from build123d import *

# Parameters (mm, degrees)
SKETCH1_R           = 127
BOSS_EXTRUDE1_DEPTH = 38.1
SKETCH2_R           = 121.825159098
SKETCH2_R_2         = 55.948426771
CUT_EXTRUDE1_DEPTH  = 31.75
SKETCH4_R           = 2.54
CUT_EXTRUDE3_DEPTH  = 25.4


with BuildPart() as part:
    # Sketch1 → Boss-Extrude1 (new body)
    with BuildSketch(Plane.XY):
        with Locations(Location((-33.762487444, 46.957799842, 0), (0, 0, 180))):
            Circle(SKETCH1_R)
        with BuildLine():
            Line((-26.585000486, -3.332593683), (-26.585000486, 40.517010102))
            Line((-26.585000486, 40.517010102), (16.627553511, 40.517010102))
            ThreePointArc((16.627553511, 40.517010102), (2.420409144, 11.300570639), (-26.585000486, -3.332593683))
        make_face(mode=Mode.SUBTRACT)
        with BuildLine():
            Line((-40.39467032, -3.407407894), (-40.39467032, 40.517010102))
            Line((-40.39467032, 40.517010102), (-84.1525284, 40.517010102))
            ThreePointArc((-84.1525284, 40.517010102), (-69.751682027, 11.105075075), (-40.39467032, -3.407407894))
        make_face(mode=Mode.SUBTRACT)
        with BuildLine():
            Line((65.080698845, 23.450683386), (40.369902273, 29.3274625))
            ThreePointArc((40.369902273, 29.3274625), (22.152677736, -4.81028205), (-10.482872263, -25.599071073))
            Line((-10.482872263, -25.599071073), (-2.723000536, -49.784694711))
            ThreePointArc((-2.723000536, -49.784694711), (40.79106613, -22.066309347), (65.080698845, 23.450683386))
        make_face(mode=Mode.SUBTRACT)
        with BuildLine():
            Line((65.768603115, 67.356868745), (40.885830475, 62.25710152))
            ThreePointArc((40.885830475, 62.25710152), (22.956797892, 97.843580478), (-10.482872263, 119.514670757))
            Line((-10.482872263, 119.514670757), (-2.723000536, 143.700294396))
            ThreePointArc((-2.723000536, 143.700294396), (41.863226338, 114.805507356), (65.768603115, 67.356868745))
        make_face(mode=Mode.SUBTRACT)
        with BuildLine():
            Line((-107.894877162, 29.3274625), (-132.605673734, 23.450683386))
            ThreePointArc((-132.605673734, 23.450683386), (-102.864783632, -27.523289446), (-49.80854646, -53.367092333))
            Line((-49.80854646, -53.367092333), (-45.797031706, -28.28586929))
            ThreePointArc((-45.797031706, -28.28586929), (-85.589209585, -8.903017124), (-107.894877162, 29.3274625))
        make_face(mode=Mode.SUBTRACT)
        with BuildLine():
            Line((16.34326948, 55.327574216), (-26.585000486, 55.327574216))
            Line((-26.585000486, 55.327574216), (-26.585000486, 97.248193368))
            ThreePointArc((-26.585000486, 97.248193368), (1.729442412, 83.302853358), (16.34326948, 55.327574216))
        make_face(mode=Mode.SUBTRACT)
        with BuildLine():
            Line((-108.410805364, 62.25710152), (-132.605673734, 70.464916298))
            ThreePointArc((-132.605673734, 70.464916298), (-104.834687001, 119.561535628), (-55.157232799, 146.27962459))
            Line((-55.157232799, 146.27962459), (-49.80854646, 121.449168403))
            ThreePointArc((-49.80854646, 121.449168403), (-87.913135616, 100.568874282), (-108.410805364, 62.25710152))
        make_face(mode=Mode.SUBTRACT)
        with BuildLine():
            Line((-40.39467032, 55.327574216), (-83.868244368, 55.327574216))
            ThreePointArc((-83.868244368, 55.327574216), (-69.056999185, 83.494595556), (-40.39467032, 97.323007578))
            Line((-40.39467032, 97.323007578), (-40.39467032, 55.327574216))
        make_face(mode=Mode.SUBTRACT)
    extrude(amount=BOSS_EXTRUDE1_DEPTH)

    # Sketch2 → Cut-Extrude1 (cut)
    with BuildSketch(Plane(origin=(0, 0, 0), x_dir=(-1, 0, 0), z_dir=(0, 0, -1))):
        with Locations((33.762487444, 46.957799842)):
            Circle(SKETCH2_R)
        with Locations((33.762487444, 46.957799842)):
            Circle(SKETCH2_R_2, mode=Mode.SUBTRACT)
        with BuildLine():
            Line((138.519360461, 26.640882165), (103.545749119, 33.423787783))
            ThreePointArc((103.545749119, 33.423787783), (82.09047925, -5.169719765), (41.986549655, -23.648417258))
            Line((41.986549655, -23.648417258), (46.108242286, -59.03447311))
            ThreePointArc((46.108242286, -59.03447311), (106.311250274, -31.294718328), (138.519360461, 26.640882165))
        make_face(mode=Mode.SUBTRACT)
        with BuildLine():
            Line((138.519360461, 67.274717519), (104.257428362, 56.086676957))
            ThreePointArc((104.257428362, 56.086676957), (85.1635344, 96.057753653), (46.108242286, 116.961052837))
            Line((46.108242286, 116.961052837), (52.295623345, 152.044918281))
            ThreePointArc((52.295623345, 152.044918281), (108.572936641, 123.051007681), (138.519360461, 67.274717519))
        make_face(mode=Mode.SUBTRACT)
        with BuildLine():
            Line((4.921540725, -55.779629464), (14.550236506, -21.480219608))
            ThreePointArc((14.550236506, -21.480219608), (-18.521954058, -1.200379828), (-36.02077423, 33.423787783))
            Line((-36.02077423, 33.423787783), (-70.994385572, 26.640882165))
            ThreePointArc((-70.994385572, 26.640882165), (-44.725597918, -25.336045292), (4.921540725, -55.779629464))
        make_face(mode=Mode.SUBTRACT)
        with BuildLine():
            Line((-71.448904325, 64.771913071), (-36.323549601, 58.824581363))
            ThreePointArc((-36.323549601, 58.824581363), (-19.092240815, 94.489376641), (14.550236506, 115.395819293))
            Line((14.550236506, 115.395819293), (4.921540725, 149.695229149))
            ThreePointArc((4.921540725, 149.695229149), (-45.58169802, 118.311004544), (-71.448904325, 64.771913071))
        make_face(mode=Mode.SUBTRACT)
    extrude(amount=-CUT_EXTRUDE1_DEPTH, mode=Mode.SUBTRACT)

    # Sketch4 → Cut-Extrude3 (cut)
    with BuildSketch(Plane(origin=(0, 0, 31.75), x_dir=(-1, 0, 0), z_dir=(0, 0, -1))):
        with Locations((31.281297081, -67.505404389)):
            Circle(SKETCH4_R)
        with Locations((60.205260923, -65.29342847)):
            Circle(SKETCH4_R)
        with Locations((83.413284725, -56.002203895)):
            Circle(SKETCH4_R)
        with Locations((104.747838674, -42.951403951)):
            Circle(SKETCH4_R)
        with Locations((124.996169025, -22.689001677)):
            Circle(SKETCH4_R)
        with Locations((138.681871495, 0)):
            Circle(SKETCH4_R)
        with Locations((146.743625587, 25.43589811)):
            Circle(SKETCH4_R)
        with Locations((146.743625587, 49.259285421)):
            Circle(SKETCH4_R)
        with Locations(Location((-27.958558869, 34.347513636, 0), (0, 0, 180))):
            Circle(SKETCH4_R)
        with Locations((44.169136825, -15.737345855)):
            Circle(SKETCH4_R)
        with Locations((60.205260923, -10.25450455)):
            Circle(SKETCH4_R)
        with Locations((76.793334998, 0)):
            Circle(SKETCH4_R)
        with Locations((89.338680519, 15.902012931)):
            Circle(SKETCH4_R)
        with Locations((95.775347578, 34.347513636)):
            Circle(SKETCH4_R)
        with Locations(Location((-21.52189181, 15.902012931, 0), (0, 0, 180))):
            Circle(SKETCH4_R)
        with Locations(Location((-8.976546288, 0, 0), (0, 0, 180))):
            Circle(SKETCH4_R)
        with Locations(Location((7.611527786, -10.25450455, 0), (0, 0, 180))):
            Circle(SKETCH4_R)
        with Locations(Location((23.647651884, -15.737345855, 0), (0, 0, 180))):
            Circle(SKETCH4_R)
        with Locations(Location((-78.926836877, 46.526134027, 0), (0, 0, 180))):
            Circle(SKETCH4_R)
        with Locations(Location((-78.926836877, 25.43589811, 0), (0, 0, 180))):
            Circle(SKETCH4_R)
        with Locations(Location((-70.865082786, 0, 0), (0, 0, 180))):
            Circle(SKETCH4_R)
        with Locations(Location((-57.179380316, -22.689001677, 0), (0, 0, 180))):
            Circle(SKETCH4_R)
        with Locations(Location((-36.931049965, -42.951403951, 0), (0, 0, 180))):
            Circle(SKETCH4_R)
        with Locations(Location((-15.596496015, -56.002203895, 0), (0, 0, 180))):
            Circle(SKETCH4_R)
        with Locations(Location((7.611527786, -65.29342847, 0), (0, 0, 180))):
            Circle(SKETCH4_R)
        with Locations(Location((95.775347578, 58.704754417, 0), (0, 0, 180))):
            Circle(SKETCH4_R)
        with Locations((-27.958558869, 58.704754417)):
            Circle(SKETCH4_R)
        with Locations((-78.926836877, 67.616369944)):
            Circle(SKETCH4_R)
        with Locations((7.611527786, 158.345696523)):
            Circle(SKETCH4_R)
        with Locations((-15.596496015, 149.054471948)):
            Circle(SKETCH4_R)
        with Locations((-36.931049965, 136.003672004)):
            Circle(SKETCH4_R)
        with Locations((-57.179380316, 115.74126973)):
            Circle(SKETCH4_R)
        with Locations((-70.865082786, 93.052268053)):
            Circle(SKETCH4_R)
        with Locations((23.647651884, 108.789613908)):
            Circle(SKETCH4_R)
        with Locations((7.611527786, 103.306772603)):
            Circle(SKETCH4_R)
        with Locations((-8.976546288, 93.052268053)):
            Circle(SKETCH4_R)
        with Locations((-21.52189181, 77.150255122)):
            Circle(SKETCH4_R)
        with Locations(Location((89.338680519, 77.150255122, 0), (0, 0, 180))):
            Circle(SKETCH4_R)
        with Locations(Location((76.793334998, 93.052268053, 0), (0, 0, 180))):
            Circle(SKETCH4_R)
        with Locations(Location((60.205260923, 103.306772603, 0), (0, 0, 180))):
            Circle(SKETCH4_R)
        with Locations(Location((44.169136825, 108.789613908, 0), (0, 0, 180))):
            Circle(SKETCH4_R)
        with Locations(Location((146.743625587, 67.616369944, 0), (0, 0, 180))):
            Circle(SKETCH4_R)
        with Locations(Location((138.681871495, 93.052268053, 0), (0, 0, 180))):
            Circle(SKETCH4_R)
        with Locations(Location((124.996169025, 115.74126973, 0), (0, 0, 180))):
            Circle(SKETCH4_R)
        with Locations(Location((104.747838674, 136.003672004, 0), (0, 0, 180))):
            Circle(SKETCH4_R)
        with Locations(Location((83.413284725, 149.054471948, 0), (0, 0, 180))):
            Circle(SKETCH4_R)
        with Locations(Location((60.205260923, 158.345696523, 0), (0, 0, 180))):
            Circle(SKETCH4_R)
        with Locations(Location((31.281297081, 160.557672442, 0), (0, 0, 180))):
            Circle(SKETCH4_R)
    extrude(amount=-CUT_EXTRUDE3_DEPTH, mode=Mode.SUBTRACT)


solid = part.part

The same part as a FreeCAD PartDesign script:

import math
import FreeCAD as App
import Part
import Sketcher
from FreeCAD import Vector
Q = App.Units.Quantity

doc = App.newDocument("Part")
params = doc.addObject("Spreadsheet::Sheet", "Params")
for row, (alias, value) in enumerate([
    ("sketch1_diameter", "10 in"),
    ("sketch1_radius", "4 in"),
    ("sketch1_radius2", "3 in"),
    ("sketch1_radius3", "2 in"),
    ("pad1_length", "1.5 in"),
    ("pocket1_length", "1.25 in"),
    ("sketch3_diameter", "0.2 in"),
    ("pocket2_length", "1 in"),
], start=1):
    params.set(f"A{row}", alias)
    params.set(f"B{row}", "=" + value)
    params.setAlias(f"B{row}", alias)

body = doc.addObject("PartDesign::Body", "Body")

# Sketch on XY plane
sketch1 = body.newObject("Sketcher::SketchObject", "Sketch")
sketch1.AttachmentSupport = (doc.getObject("XY_Plane"), [""])
sketch1.MapMode = "FlatFace"
sketch1.addGeometry(Part.Circle(Vector(-34, 47, 0), Vector(0, 0, 1), 127), False)
sketch1.addGeometry(Part.ArcOfCircle(Part.Circle(Vector(-34, 47, 0), Vector(0, 0, 1), 102), math.radians(12), math.radians(72)), False)
sketch1.addGeometry(Part.LineSegment(Vector(66, 67, 0), Vector(41, 62, 0)), False)
sketch1.addGeometry(Part.ArcOfCircle(Part.Circle(Vector(-34, 47, 0), Vector(0, 0, 1), 76), math.radians(12), math.radians(72)), False)
sketch1.addGeometry(Part.LineSegment(Vector(-10, 120, 0), Vector(-3, 144, 0)), False)
sketch1.addGeometry(Part.ArcOfCircle(Part.Circle(Vector(-34, 47, 0), Vector(0, 0, 1), 51), math.radians(9), math.radians(82)), False)
sketch1.addGeometry(Part.LineSegment(Vector(16, 55, 0), Vector(-27, 55, 0)), False)
sketch1.addGeometry(Part.LineSegment(Vector(-27, 55, 0), Vector(-27, 97, 0)), False)
sketch1.addGeometry(Part.ArcOfCircle(Part.Circle(Vector(-34, 47, 0), Vector(0, 0, 1), 76), math.radians(102), math.radians(168)), False)
sketch1.addGeometry(Part.LineSegment(Vector(-108, 62, 0), Vector(-133, 70, 0)), False)
sketch1.addGeometry(Part.ArcOfCircle(Part.Circle(Vector(-34, 47, 0), Vector(0, 0, 1), 102), math.radians(102), math.radians(167)), False)
sketch1.addGeometry(Part.LineSegment(Vector(-55, 146, 0), Vector(-50, 121, 0)), False)
sketch1.addGeometry(Part.LineSegment(Vector(-40, 97, 0), Vector(-40, 55, 0)), False)
sketch1.addGeometry(Part.LineSegment(Vector(-40, 55, 0), Vector(-84, 55, 0)), False)
sketch1.addGeometry(Part.ArcOfCircle(Part.Circle(Vector(-34, 47, 0), Vector(0, 0, 1), 51), math.radians(98), math.radians(171)), False)
sketch1.addGeometry(Part.ArcOfCircle(Part.Circle(Vector(-34, 47, 0), Vector(0, 0, 1), 51), math.radians(-82), math.radians(-7)), False)
sketch1.addGeometry(Part.LineSegment(Vector(-27, -3, 0), Vector(-27, 41, 0)), False)
sketch1.addGeometry(Part.LineSegment(Vector(-27, 41, 0), Vector(17, 41, 0)), False)
sketch1.addGeometry(Part.LineSegment(Vector(40, 29, 0), Vector(65, 23, 0)), False)
sketch1.addGeometry(Part.ArcOfCircle(Part.Circle(Vector(-34, 47, 0), Vector(0, 0, 1), 102), math.radians(-72), math.radians(-13)), False)
sketch1.addGeometry(Part.LineSegment(Vector(-3, -50, 0), Vector(-10, -26, 0)), False)
sketch1.addGeometry(Part.ArcOfCircle(Part.Circle(Vector(-34, 47, 0), Vector(0, 0, 1), 76), math.radians(-72), math.radians(-13)), False)
sketch1.addGeometry(Part.LineSegment(Vector(-40, 41, 0), Vector(-40, -3, 0)), False)
sketch1.addGeometry(Part.ArcOfCircle(Part.Circle(Vector(-34, 47, 0), Vector(0, 0, 1), 51), math.radians(-173), math.radians(-98)), False)
sketch1.addGeometry(Part.LineSegment(Vector(-84, 41, 0), Vector(-40, 41, 0)), False)
sketch1.addGeometry(Part.LineSegment(Vector(-133, 23, 0), Vector(-108, 29, 0)), False)
sketch1.addGeometry(Part.ArcOfCircle(Part.Circle(Vector(-34, 47, 0), Vector(0, 0, 1), 76), math.radians(-167), math.radians(-99)), False)
sketch1.addGeometry(Part.LineSegment(Vector(-46, -28, 0), Vector(-50, -53, 0)), False)
sketch1.addGeometry(Part.ArcOfCircle(Part.Circle(Vector(-34, 47, 0), Vector(0, 0, 1), 102), math.radians(-167), math.radians(-99)), False)
sketch1.addConstraint(Sketcher.Constraint("Coincident", 1, 1, 2, 1))
sketch1.addConstraint(Sketcher.Constraint("Coincident", 2, 2, 3, 1))
sketch1.addConstraint(Sketcher.Constraint("Coincident", 3, 2, 4, 1))
sketch1.addConstraint(Sketcher.Constraint("Coincident", 4, 2, 1, 2))
sketch1.addConstraint(Sketcher.Constraint("Coincident", 5, 1, 6, 1))
sketch1.addConstraint(Sketcher.Constraint("Coincident", 6, 2, 7, 1))
sketch1.addConstraint(Sketcher.Constraint("Coincident", 7, 2, 5, 2))
sketch1.addConstraint(Sketcher.Constraint("Coincident", 8, 2, 9, 1))
sketch1.addConstraint(Sketcher.Constraint("Coincident", 9, 2, 10, 2))
sketch1.addConstraint(Sketcher.Constraint("Coincident", 10, 1, 11, 1))
sketch1.addConstraint(Sketcher.Constraint("Coincident", 11, 2, 8, 1))
sketch1.addConstraint(Sketcher.Constraint("Coincident", 12, 2, 13, 1))
sketch1.addConstraint(Sketcher.Constraint("Coincident", 13, 2, 14, 2))
sketch1.addConstraint(Sketcher.Constraint("Coincident", 14, 1, 12, 1))
sketch1.addConstraint(Sketcher.Constraint("Coincident", 15, 1, 16, 1))
sketch1.addConstraint(Sketcher.Constraint("Coincident", 16, 2, 17, 1))
sketch1.addConstraint(Sketcher.Constraint("Coincident", 17, 2, 15, 2))
sketch1.addConstraint(Sketcher.Constraint("Coincident", 18, 2, 19, 2))
sketch1.addConstraint(Sketcher.Constraint("Coincident", 19, 1, 20, 1))
sketch1.addConstraint(Sketcher.Constraint("Coincident", 20, 2, 21, 1))
sketch1.addConstraint(Sketcher.Constraint("Coincident", 21, 2, 18, 1))
sketch1.addConstraint(Sketcher.Constraint("Coincident", 22, 2, 23, 2))
sketch1.addConstraint(Sketcher.Constraint("Coincident", 23, 1, 24, 1))
sketch1.addConstraint(Sketcher.Constraint("Coincident", 24, 2, 22, 1))
sketch1.addConstraint(Sketcher.Constraint("Coincident", 25, 2, 26, 1))
sketch1.addConstraint(Sketcher.Constraint("Coincident", 26, 2, 27, 1))
sketch1.addConstraint(Sketcher.Constraint("Coincident", 27, 2, 28, 2))
sketch1.addConstraint(Sketcher.Constraint("Coincident", 28, 1, 25, 1))
sketch1.addConstraint(Sketcher.Constraint("Horizontal", 6))
sketch1.addConstraint(Sketcher.Constraint("Vertical", 7))
sketch1.addConstraint(Sketcher.Constraint("Vertical", 12))
sketch1.addConstraint(Sketcher.Constraint("Horizontal", 13))
sketch1.addConstraint(Sketcher.Constraint("Vertical", 16))
sketch1.addConstraint(Sketcher.Constraint("Horizontal", 17))
sketch1.addConstraint(Sketcher.Constraint("Vertical", 22))
sketch1.addConstraint(Sketcher.Constraint("Horizontal", 24))
sketch1.addConstraint(Sketcher.Constraint("Coincident", 1, 3, 0, 3))
sketch1.addConstraint(Sketcher.Constraint("Coincident", 3, 3, 0, 3))
sketch1.addConstraint(Sketcher.Constraint("Coincident", 5, 3, 0, 3))
sketch1.addConstraint(Sketcher.Constraint("Coincident", 8, 3, 0, 3))
sketch1.addConstraint(Sketcher.Constraint("Coincident", 10, 3, 0, 3))
sketch1.addConstraint(Sketcher.Constraint("Coincident", 14, 3, 0, 3))
sketch1.addConstraint(Sketcher.Constraint("Coincident", 15, 3, 0, 3))
sketch1.addConstraint(Sketcher.Constraint("Coincident", 19, 3, 0, 3))
sketch1.addConstraint(Sketcher.Constraint("Coincident", 21, 3, 0, 3))
sketch1.addConstraint(Sketcher.Constraint("Coincident", 23, 3, 0, 3))
sketch1.addConstraint(Sketcher.Constraint("Coincident", 26, 3, 0, 3))
sketch1.addConstraint(Sketcher.Constraint("Coincident", 28, 3, 0, 3))
sketch1.addConstraint(Sketcher.Constraint("Equal", 3, 8))
sketch1.addConstraint(Sketcher.Constraint("Equal", 1, 10))
sketch1.addConstraint(Sketcher.Constraint("Equal", 5, 14))
sketch1.addConstraint(Sketcher.Constraint("Equal", 14, 15))
sketch1.addConstraint(Sketcher.Constraint("Equal", 10, 19))
sketch1.addConstraint(Sketcher.Constraint("Equal", 8, 21))
sketch1.addConstraint(Sketcher.Constraint("Equal", 15, 23))
sketch1.addConstraint(Sketcher.Constraint("Equal", 21, 26))
sketch1.addConstraint(Sketcher.Constraint("Equal", 19, 28))
sketch1.addConstraint(Sketcher.Constraint("Horizontal", 2, 2, 8, 2))
sketch1.addConstraint(Sketcher.Constraint("Horizontal", 6, 2, 12, 2))
sketch1.addConstraint(Sketcher.Constraint("Horizontal", 17, 2, 23, 1))
sketch1.addConstraint(Sketcher.Constraint("Horizontal", 21, 2, 25, 2))
sketch1.addConstraint(Sketcher.Constraint("Horizontal", 18, 2, 28, 1))
sketch1.addConstraint(Sketcher.Constraint("Vertical", 7, 2, 15, 1))
sketch1.addConstraint(Sketcher.Constraint("Vertical", 4, 2, 19, 1))
sketch1.addConstraint(Sketcher.Constraint("Vertical", 3, 2, 20, 2))
sketch1.addConstraint(Sketcher.Constraint("Vertical", 14, 1, 22, 2))
sketch1.addConstraint(Sketcher.Constraint("Vertical", 11, 2, 27, 2))
sketch1.addConstraint(Sketcher.Constraint("Vertical", 9, 2, 28, 1))
sketch1.addConstraint(Sketcher.Constraint("Diameter", 0, Q("10 in")))
sketch1.addConstraint(Sketcher.Constraint("Radius", 1, Q("4 in")))
sketch1.addConstraint(Sketcher.Constraint("Radius", 3, Q("3 in")))
sketch1.addConstraint(Sketcher.Constraint("Radius", 5, Q("2 in")))
sketch1.addConstraint(Sketcher.Constraint("DistanceX", 6, 2, 6, 1, 42.92827))
sketch1.addConstraint(Sketcher.Constraint("DistanceX", 24, 1, 24, 2, 43.757858))
sketch1.addConstraint(Sketcher.Constraint("DistanceY", 7, 1, 7, 2, 41.920619))
sketch1.addConstraint(Sketcher.Constraint("DistanceY", -1, 1, 0, 3, 46.9578))
sketch1.addConstraint(Sketcher.Constraint("DistanceY", -1, 1, 2, 2, 62.257102))
sketch1.addConstraint(Sketcher.Constraint("DistanceX", 4, 2, -1, 1, 2.723001))
sketch1.addConstraint(Sketcher.Constraint("DistanceX", 6, 2, -1, 1, 26.585))
sketch1.addConstraint(Sketcher.Constraint("DistanceX", -1, 1, 18, 2, 65.080699))
sketch1.addConstraint(Sketcher.Constraint("DistanceX", 14, 1, 3, 2, 29.911798))
sketch1.addConstraint(Sketcher.Constraint("DistanceX", 21, 2, 1, 1, 25.398701))
sketch1.addConstraint(Sketcher.Constraint("DistanceY", 26, 2, 20, 2, 2.686798))
sketch1.addConstraint(Sketcher.Constraint("DistanceY", 27, 2, 15, 1, 50.034499))
sketch1.addConstraint(Sketcher.Constraint("DistanceX", 13, 2, 13, 1, 43.473574))
sketch1.addConstraint(Sketcher.Constraint("DistanceY", -1, 1, 1, 1, 67.356869))
sketch1.addConstraint(Sketcher.Constraint("DistanceX", 10, 1, 3, 2, 44.674361))
sketch1.setExpression("Constraints[68]", "Params.sketch1_diameter")
sketch1.setExpression("Constraints[69]", "Params.sketch1_radius")
sketch1.setExpression("Constraints[70]", "Params.sketch1_radius2")
sketch1.setExpression("Constraints[71]", "Params.sketch1_radius3")
pad1 = body.newObject("PartDesign::Pad", "Pad")
pad1.Profile = sketch1
pad1.setExpression("Length", "Params.pad1_length")

# Sketch on XY plane
sketch2 = body.newObject("Sketcher::SketchObject", "Sketch001")
sketch2.AttachmentSupport = (doc.getObject("XY_Plane"), [""])
sketch2.MapMode = "FlatFace"
sketch2.addGeometry(Part.Circle(Vector(-34, 47, 0), Vector(0, 0, 1), 122), False)
sketch2.addGeometry(Part.LineSegment(Vector(-15, -21, 0), Vector(-5, -56, 0)), False)
sketch2.addGeometry(Part.ArcOfCircle(Part.Circle(Vector(-34, 47, 0), Vector(0, 0, 1), 107), math.radians(-74), math.radians(-11)), False)
sketch2.addGeometry(Part.LineSegment(Vector(71, 27, 0), Vector(36, 33, 0)), False)
sketch2.addGeometry(Part.ArcOfCircle(Part.Circle(Vector(-34, 47, 0), Vector(0, 0, 1), 71), math.radians(-74), math.radians(-11)), False)
sketch2.addGeometry(Part.LineSegment(Vector(-104, 33, 0), Vector(-139, 27, 0)), False)
sketch2.addGeometry(Part.ArcOfCircle(Part.Circle(Vector(-34, 47, 0), Vector(0, 0, 1), 107), math.radians(-169), math.radians(-97)), False)
sketch2.addGeometry(Part.LineSegment(Vector(-46, -59, 0), Vector(-42, -24, 0)), False)
sketch2.addGeometry(Part.ArcOfCircle(Part.Circle(Vector(-34, 47, 0), Vector(0, 0, 1), 71), math.radians(-169), math.radians(-97)), False)
sketch2.addGeometry(Part.LineSegment(Vector(36, 59, 0), Vector(71, 65, 0)), False)
sketch2.addGeometry(Part.ArcOfCircle(Part.Circle(Vector(-34, 47, 0), Vector(0, 0, 1), 107), math.radians(10), math.radians(74)), False)
sketch2.addGeometry(Part.LineSegment(Vector(-5, 150, 0), Vector(-15, 115, 0)), False)
sketch2.addGeometry(Part.ArcOfCircle(Part.Circle(Vector(-34, 47, 0), Vector(0, 0, 1), 71), math.radians(10), math.radians(74)), False)
sketch2.addGeometry(Part.Circle(Vector(-34, 47, 0), Vector(0, 0, 1), 56), False)
sketch2.addGeometry(Part.ArcOfCircle(Part.Circle(Vector(-34, 47, 0), Vector(0, 0, 1), 107), math.radians(100), math.radians(169)), False)
sketch2.addGeometry(Part.LineSegment(Vector(-139, 67, 0), Vector(-104, 56, 0)), False)
sketch2.addGeometry(Part.ArcOfCircle(Part.Circle(Vector(-34, 47, 0), Vector(0, 0, 1), 71), math.radians(100), math.radians(173)), False)
sketch2.addGeometry(Part.LineSegment(Vector(-46, 117, 0), Vector(-52, 152, 0)), False)
sketch2.addConstraint(Sketcher.Constraint("Coincident", 1, 2, 2, 1))
sketch2.addConstraint(Sketcher.Constraint("Coincident", 2, 2, 3, 1))
sketch2.addConstraint(Sketcher.Constraint("Coincident", 3, 2, 4, 2))
sketch2.addConstraint(Sketcher.Constraint("Coincident", 4, 1, 1, 1))
sketch2.addConstraint(Sketcher.Constraint("Coincident", 5, 2, 6, 1))
sketch2.addConstraint(Sketcher.Constraint("Coincident", 6, 2, 7, 1))
sketch2.addConstraint(Sketcher.Constraint("Coincident", 7, 2, 8, 2))
sketch2.addConstraint(Sketcher.Constraint("Coincident", 8, 1, 5, 1))
sketch2.addConstraint(Sketcher.Constraint("Coincident", 9, 2, 10, 1))
sketch2.addConstraint(Sketcher.Constraint("Coincident", 10, 2, 11, 1))
sketch2.addConstraint(Sketcher.Constraint("Coincident", 11, 2, 12, 2))
sketch2.addConstraint(Sketcher.Constraint("Coincident", 12, 1, 9, 1))
sketch2.addConstraint(Sketcher.Constraint("Coincident", 14, 2, 15, 1))
sketch2.addConstraint(Sketcher.Constraint("Coincident", 15, 2, 16, 2))
sketch2.addConstraint(Sketcher.Constraint("Coincident", 16, 1, 17, 1))
sketch2.addConstraint(Sketcher.Constraint("Coincident", 17, 2, 14, 1))
sketch2.addConstraint(Sketcher.Constraint("Coincident", 2, 3, 0, 3))
sketch2.addConstraint(Sketcher.Constraint("Coincident", 4, 3, 0, 3))
sketch2.addConstraint(Sketcher.Constraint("Coincident", 6, 3, 0, 3))
sketch2.addConstraint(Sketcher.Constraint("Coincident", 8, 3, 0, 3))
sketch2.addConstraint(Sketcher.Constraint("Coincident", 10, 3, 0, 3))
sketch2.addConstraint(Sketcher.Constraint("Coincident", 12, 3, 0, 3))
sketch2.addConstraint(Sketcher.Constraint("Coincident", 13, 3, 0, 3))
sketch2.addConstraint(Sketcher.Constraint("Coincident", 14, 3, 0, 3))
sketch2.addConstraint(Sketcher.Constraint("Coincident", 16, 3, 0, 3))
sketch2.addConstraint(Sketcher.Constraint("Equal", 2, 6))
sketch2.addConstraint(Sketcher.Constraint("Equal", 4, 8))
sketch2.addConstraint(Sketcher.Constraint("Equal", 6, 10))
sketch2.addConstraint(Sketcher.Constraint("Equal", 8, 12))
sketch2.addConstraint(Sketcher.Constraint("Equal", 10, 14))
sketch2.addConstraint(Sketcher.Constraint("Equal", 12, 16))
sketch2.addConstraint(Sketcher.Constraint("Horizontal", 2, 2, 5, 2))
sketch2.addConstraint(Sketcher.Constraint("Horizontal", 3, 2, 8, 1))
sketch2.addConstraint(Sketcher.Constraint("Vertical", 1, 2, 10, 2))
sketch2.addConstraint(Sketcher.Constraint("Vertical", 4, 1, 11, 2))
sketch2.addConstraint(Sketcher.Constraint("Vertical", 5, 2, 14, 2))
sketch2.addConstraint(Sketcher.Constraint("Vertical", 6, 2, 16, 1))
sketch2.addConstraint(Sketcher.Constraint("Diameter", 0, 243.650318))
sketch2.addConstraint(Sketcher.Constraint("Diameter", 13, 111.896854))
sketch2.addConstraint(Sketcher.Constraint("Radius", 2, 106.708854))
sketch2.addConstraint(Sketcher.Constraint("Radius", 4, 71.083564))
sketch2.addConstraint(Sketcher.Constraint("DistanceY", -1, 1, 0, 3, 46.9578))
sketch2.addConstraint(Sketcher.Constraint("DistanceX", 6, 2, 1, 2, 41.186702))
sketch2.addConstraint(Sketcher.Constraint("DistanceY", 2, 2, 12, 1, 32.183699))
sketch2.addConstraint(Sketcher.Constraint("DistanceY", 11, 2, 17, 2, 36.649099))
sketch2.addConstraint(Sketcher.Constraint("DistanceX", 1, 2, -1, 1, 4.921541))
sketch2.addConstraint(Sketcher.Constraint("DistanceY", 1, 2, -1, 1, 55.779629))
sketch2.addConstraint(Sketcher.Constraint("DistanceY", 4, 1, -1, 1, 21.48022))
sketch2.addConstraint(Sketcher.Constraint("DistanceX", 5, 2, -1, 1, 138.51936))
sketch2.addConstraint(Sketcher.Constraint("DistanceX", 7, 2, -1, 1, 41.98655))
sketch2.addConstraint(Sketcher.Constraint("DistanceX", 8, 1, -1, 1, 103.545749))
sketch2.addConstraint(Sketcher.Constraint("DistanceX", 15, 2, -1, 1, 104.257428))
sketch2.addConstraint(Sketcher.Constraint("DistanceX", 2, 2, 9, 2, 0.454519))
pocket1 = body.newObject("PartDesign::Pocket", "Pocket")
pocket1.Profile = sketch2
pocket1.setExpression("Length", "Params.pocket1_length")
pocket1.Reversed = True

# Sketch on XY plane
sketch3 = body.newObject("Sketcher::SketchObject", "Sketch002")
sketch3.AttachmentSupport = (doc.getObject("XY_Plane"), [""])
sketch3.MapMode = "FlatFace"
sketch3.AttachmentOffset = App.Placement(Vector(0, 0, 1.25 * 25.4), App.Rotation())
sketch3.addGeometry(Part.Circle(Vector(-31.3, -67.5, 0), Vector(0, 0, 1), 2.5), False)
sketch3.addGeometry(Part.Circle(Vector(-60.2, -65.3, 0), Vector(0, 0, 1), 2.5), False)
sketch3.addGeometry(Part.Circle(Vector(-83.4, -56, 0), Vector(0, 0, 1), 2.5), False)
sketch3.addGeometry(Part.Circle(Vector(-104.7, -43, 0), Vector(0, 0, 1), 2.5), False)
sketch3.addGeometry(Part.Circle(Vector(-125, -22.7, 0), Vector(0, 0, 1), 2.5), False)
sketch3.addGeometry(Part.Circle(Vector(-138.7, 0, 0), Vector(0, 0, 1), 2.5), False)
sketch3.addGeometry(Part.Circle(Vector(-146.7, 25.4, 0), Vector(0, 0, 1), 2.5), False)
sketch3.addGeometry(Part.Circle(Vector(-146.7, 49.3, 0), Vector(0, 0, 1), 2.5), False)
sketch3.addGeometry(Part.Circle(Vector(28, 34.3, 0), Vector(0, 0, 1), 2.5), False)
sketch3.addGeometry(Part.Circle(Vector(-44.2, -15.7, 0), Vector(0, 0, 1), 2.5), False)
sketch3.addGeometry(Part.Circle(Vector(-60.2, -10.3, 0), Vector(0, 0, 1), 2.5), False)
sketch3.addGeometry(Part.Circle(Vector(-76.8, 0, 0), Vector(0, 0, 1), 2.5), False)
sketch3.addGeometry(Part.Circle(Vector(-89.3, 15.9, 0), Vector(0, 0, 1), 2.5), False)
sketch3.addGeometry(Part.Circle(Vector(-95.8, 34.3, 0), Vector(0, 0, 1), 2.5), False)
sketch3.addGeometry(Part.Circle(Vector(21.5, 15.9, 0), Vector(0, 0, 1), 2.5), False)
sketch3.addGeometry(Part.Circle(Vector(9, 0, 0), Vector(0, 0, 1), 2.5), False)
sketch3.addGeometry(Part.Circle(Vector(-7.6, -10.3, 0), Vector(0, 0, 1), 2.5), False)
sketch3.addGeometry(Part.Circle(Vector(-23.6, -15.7, 0), Vector(0, 0, 1), 2.5), False)
sketch3.addGeometry(Part.Circle(Vector(78.9, 46.5, 0), Vector(0, 0, 1), 2.5), False)
sketch3.addGeometry(Part.Circle(Vector(78.9, 25.4, 0), Vector(0, 0, 1), 2.5), False)
sketch3.addGeometry(Part.Circle(Vector(70.9, 0, 0), Vector(0, 0, 1), 2.5), False)
sketch3.addGeometry(Part.Circle(Vector(57.2, -22.7, 0), Vector(0, 0, 1), 2.5), False)
sketch3.addGeometry(Part.Circle(Vector(36.9, -43, 0), Vector(0, 0, 1), 2.5), False)
sketch3.addGeometry(Part.Circle(Vector(15.6, -56, 0), Vector(0, 0, 1), 2.5), False)
sketch3.addGeometry(Part.Circle(Vector(-7.6, -65.3, 0), Vector(0, 0, 1), 2.5), False)
sketch3.addGeometry(Part.Circle(Vector(-95.8, 58.7, 0), Vector(0, 0, 1), 2.5), False)
sketch3.addGeometry(Part.Circle(Vector(28, 58.7, 0), Vector(0, 0, 1), 2.5), False)
sketch3.addGeometry(Part.Circle(Vector(78.9, 67.6, 0), Vector(0, 0, 1), 2.5), False)
sketch3.addGeometry(Part.Circle(Vector(-7.6, 158.3, 0), Vector(0, 0, 1), 2.5), False)
sketch3.addGeometry(Part.Circle(Vector(15.6, 149.1, 0), Vector(0, 0, 1), 2.5), False)
sketch3.addGeometry(Part.Circle(Vector(36.9, 136, 0), Vector(0, 0, 1), 2.5), False)
sketch3.addGeometry(Part.Circle(Vector(57.2, 115.7, 0), Vector(0, 0, 1), 2.5), False)
sketch3.addGeometry(Part.Circle(Vector(70.9, 93.1, 0), Vector(0, 0, 1), 2.5), False)
sketch3.addGeometry(Part.Circle(Vector(-23.6, 108.8, 0), Vector(0, 0, 1), 2.5), False)
sketch3.addGeometry(Part.Circle(Vector(-7.6, 103.3, 0), Vector(0, 0, 1), 2.5), False)
sketch3.addGeometry(Part.Circle(Vector(9, 93.1, 0), Vector(0, 0, 1), 2.5), False)
sketch3.addGeometry(Part.Circle(Vector(21.5, 77.2, 0), Vector(0, 0, 1), 2.5), False)
sketch3.addGeometry(Part.Circle(Vector(-89.3, 77.2, 0), Vector(0, 0, 1), 2.5), False)
sketch3.addGeometry(Part.Circle(Vector(-76.8, 93.1, 0), Vector(0, 0, 1), 2.5), False)
sketch3.addGeometry(Part.Circle(Vector(-60.2, 103.3, 0), Vector(0, 0, 1), 2.5), False)
sketch3.addGeometry(Part.Circle(Vector(-44.2, 108.8, 0), Vector(0, 0, 1), 2.5), False)
sketch3.addGeometry(Part.Circle(Vector(-146.7, 67.6, 0), Vector(0, 0, 1), 2.5), False)
sketch3.addGeometry(Part.Circle(Vector(-138.7, 93.1, 0), Vector(0, 0, 1), 2.5), False)
sketch3.addGeometry(Part.Circle(Vector(-125, 115.7, 0), Vector(0, 0, 1), 2.5), False)
sketch3.addGeometry(Part.Circle(Vector(-104.7, 136, 0), Vector(0, 0, 1), 2.5), False)
sketch3.addGeometry(Part.Circle(Vector(-83.4, 149.1, 0), Vector(0, 0, 1), 2.5), False)
sketch3.addGeometry(Part.Circle(Vector(-60.2, 158.3, 0), Vector(0, 0, 1), 2.5), False)
sketch3.addGeometry(Part.Circle(Vector(-31.3, 160.6, 0), Vector(0, 0, 1), 2.5), False)
sketch3.addConstraint(Sketcher.Constraint("Equal", 0, 1))
sketch3.addConstraint(Sketcher.Constraint("Equal", 1, 2))
sketch3.addConstraint(Sketcher.Constraint("Equal", 2, 3))
sketch3.addConstraint(Sketcher.Constraint("Equal", 3, 4))
sketch3.addConstraint(Sketcher.Constraint("Equal", 4, 5))
sketch3.addConstraint(Sketcher.Constraint("Equal", 5, 6))
sketch3.addConstraint(Sketcher.Constraint("Equal", 6, 7))
sketch3.addConstraint(Sketcher.Constraint("Equal", 7, 8))
sketch3.addConstraint(Sketcher.Constraint("Equal", 8, 9))
sketch3.addConstraint(Sketcher.Constraint("Equal", 9, 10))
sketch3.addConstraint(Sketcher.Constraint("Equal", 10, 11))
sketch3.addConstraint(Sketcher.Constraint("Equal", 11, 12))
sketch3.addConstraint(Sketcher.Constraint("Equal", 12, 13))
sketch3.addConstraint(Sketcher.Constraint("Equal", 13, 14))
sketch3.addConstraint(Sketcher.Constraint("Equal", 14, 15))
sketch3.addConstraint(Sketcher.Constraint("Equal", 15, 16))
sketch3.addConstraint(Sketcher.Constraint("Equal", 16, 17))
sketch3.addConstraint(Sketcher.Constraint("Equal", 17, 18))
sketch3.addConstraint(Sketcher.Constraint("Equal", 18, 19))
sketch3.addConstraint(Sketcher.Constraint("Equal", 19, 20))
sketch3.addConstraint(Sketcher.Constraint("Equal", 20, 21))
sketch3.addConstraint(Sketcher.Constraint("Equal", 21, 22))
sketch3.addConstraint(Sketcher.Constraint("Equal", 22, 23))
sketch3.addConstraint(Sketcher.Constraint("Equal", 23, 24))
sketch3.addConstraint(Sketcher.Constraint("Equal", 24, 25))
sketch3.addConstraint(Sketcher.Constraint("Equal", 25, 26))
sketch3.addConstraint(Sketcher.Constraint("Equal", 26, 27))
sketch3.addConstraint(Sketcher.Constraint("Equal", 27, 28))
sketch3.addConstraint(Sketcher.Constraint("Equal", 28, 29))
sketch3.addConstraint(Sketcher.Constraint("Equal", 29, 30))
sketch3.addConstraint(Sketcher.Constraint("Equal", 30, 31))
sketch3.addConstraint(Sketcher.Constraint("Equal", 31, 32))
sketch3.addConstraint(Sketcher.Constraint("Equal", 32, 33))
sketch3.addConstraint(Sketcher.Constraint("Equal", 33, 34))
sketch3.addConstraint(Sketcher.Constraint("Equal", 34, 35))
sketch3.addConstraint(Sketcher.Constraint("Equal", 35, 36))
sketch3.addConstraint(Sketcher.Constraint("Equal", 36, 37))
sketch3.addConstraint(Sketcher.Constraint("Equal", 37, 38))
sketch3.addConstraint(Sketcher.Constraint("Equal", 38, 39))
sketch3.addConstraint(Sketcher.Constraint("Equal", 39, 40))
sketch3.addConstraint(Sketcher.Constraint("Equal", 40, 41))
sketch3.addConstraint(Sketcher.Constraint("Equal", 41, 42))
sketch3.addConstraint(Sketcher.Constraint("Equal", 42, 43))
sketch3.addConstraint(Sketcher.Constraint("Equal", 43, 44))
sketch3.addConstraint(Sketcher.Constraint("Equal", 44, 45))
sketch3.addConstraint(Sketcher.Constraint("Equal", 45, 46))
sketch3.addConstraint(Sketcher.Constraint("Equal", 46, 47))
sketch3.addConstraint(Sketcher.Constraint("PointOnObject", 5, 3, -1))
sketch3.addConstraint(Sketcher.Constraint("PointOnObject", 11, 3, -1))
sketch3.addConstraint(Sketcher.Constraint("PointOnObject", 15, 3, -1))
sketch3.addConstraint(Sketcher.Constraint("PointOnObject", 20, 3, -1))
sketch3.addConstraint(Sketcher.Constraint("Horizontal", 8, 3, 13, 3))
sketch3.addConstraint(Sketcher.Constraint("Horizontal", 12, 3, 14, 3))
sketch3.addConstraint(Sketcher.Constraint("Horizontal", 10, 3, 16, 3))
sketch3.addConstraint(Sketcher.Constraint("Horizontal", 9, 3, 17, 3))
sketch3.addConstraint(Sketcher.Constraint("Horizontal", 6, 3, 19, 3))
sketch3.addConstraint(Sketcher.Constraint("Horizontal", 4, 3, 21, 3))
sketch3.addConstraint(Sketcher.Constraint("Horizontal", 3, 3, 22, 3))
sketch3.addConstraint(Sketcher.Constraint("Horizontal", 2, 3, 23, 3))
sketch3.addConstraint(Sketcher.Constraint("Horizontal", 1, 3, 24, 3))
sketch3.addConstraint(Sketcher.Constraint("Horizontal", 25, 3, 26, 3))
sketch3.addConstraint(Sketcher.Constraint("Horizontal", 32, 3, 35, 3))
sketch3.addConstraint(Sketcher.Constraint("Horizontal", 36, 3, 37, 3))
sketch3.addConstraint(Sketcher.Constraint("Horizontal", 35, 3, 38, 3))
sketch3.addConstraint(Sketcher.Constraint("Horizontal", 34, 3, 39, 3))
sketch3.addConstraint(Sketcher.Constraint("Horizontal", 33, 3, 40, 3))
sketch3.addConstraint(Sketcher.Constraint("Horizontal", 27, 3, 41, 3))
sketch3.addConstraint(Sketcher.Constraint("Horizontal", 38, 3, 42, 3))
sketch3.addConstraint(Sketcher.Constraint("Horizontal", 31, 3, 43, 3))
sketch3.addConstraint(Sketcher.Constraint("Horizontal", 30, 3, 44, 3))
sketch3.addConstraint(Sketcher.Constraint("Horizontal", 29, 3, 45, 3))
sketch3.addConstraint(Sketcher.Constraint("Horizontal", 28, 3, 46, 3))
sketch3.addConstraint(Sketcher.Constraint("Vertical", 6, 3, 7, 3))
sketch3.addConstraint(Sketcher.Constraint("Vertical", 1, 3, 10, 3))
sketch3.addConstraint(Sketcher.Constraint("Vertical", 18, 3, 19, 3))
sketch3.addConstraint(Sketcher.Constraint("Vertical", 16, 3, 24, 3))
sketch3.addConstraint(Sketcher.Constraint("Vertical", 13, 3, 25, 3))
sketch3.addConstraint(Sketcher.Constraint("Vertical", 8, 3, 26, 3))
sketch3.addConstraint(Sketcher.Constraint("Vertical", 19, 3, 27, 3))
sketch3.addConstraint(Sketcher.Constraint("Vertical", 24, 3, 28, 3))
sketch3.addConstraint(Sketcher.Constraint("Vertical", 23, 3, 29, 3))
sketch3.addConstraint(Sketcher.Constraint("Vertical", 22, 3, 30, 3))
sketch3.addConstraint(Sketcher.Constraint("Vertical", 21, 3, 31, 3))
sketch3.addConstraint(Sketcher.Constraint("Vertical", 20, 3, 32, 3))
sketch3.addConstraint(Sketcher.Constraint("Vertical", 17, 3, 33, 3))
sketch3.addConstraint(Sketcher.Constraint("Vertical", 28, 3, 34, 3))
sketch3.addConstraint(Sketcher.Constraint("Vertical", 15, 3, 35, 3))
sketch3.addConstraint(Sketcher.Constraint("Vertical", 14, 3, 36, 3))
sketch3.addConstraint(Sketcher.Constraint("Vertical", 12, 3, 37, 3))
sketch3.addConstraint(Sketcher.Constraint("Vertical", 11, 3, 38, 3))
sketch3.addConstraint(Sketcher.Constraint("Vertical", 10, 3, 39, 3))
sketch3.addConstraint(Sketcher.Constraint("Vertical", 9, 3, 40, 3))
sketch3.addConstraint(Sketcher.Constraint("Vertical", 7, 3, 41, 3))
sketch3.addConstraint(Sketcher.Constraint("Vertical", 5, 3, 42, 3))
sketch3.addConstraint(Sketcher.Constraint("Vertical", 4, 3, 43, 3))
sketch3.addConstraint(Sketcher.Constraint("Vertical", 3, 3, 44, 3))
sketch3.addConstraint(Sketcher.Constraint("Vertical", 2, 3, 45, 3))
sketch3.addConstraint(Sketcher.Constraint("Vertical", 39, 3, 46, 3))
sketch3.addConstraint(Sketcher.Constraint("Vertical", 0, 3, 47, 3))
sketch3.addConstraint(Sketcher.Constraint("Diameter", 0, Q("0.2 in")))
sketch3.addConstraint(Sketcher.Constraint("DistanceY", 3, 3, -1, 1, Q("1.6910002 in")))
sketch3.addConstraint(Sketcher.Constraint("DistanceY", 32, 3, 30, 3, Q("1.6910002 in")))
sketch3.addConstraint(Sketcher.Constraint("DistanceY", 4, 3, -1, 1, 22.689002))
sketch3.addConstraint(Sketcher.Constraint("DistanceY", -1, 1, 6, 3, 25.435898))
sketch3.addConstraint(Sketcher.Constraint("DistanceY", 0, 3, 2, 3, 11.5032))
sketch3.addConstraint(Sketcher.Constraint("DistanceY", 2, 3, 3, 3, 13.0508))
sketch3.addConstraint(Sketcher.Constraint("DistanceX", 3, 3, 9, 3, 60.578702))
sketch3.addConstraint(Sketcher.Constraint("DistanceY", 2, 3, 10, 3, 45.747699))
sketch3.addConstraint(Sketcher.Constraint("DistanceX", 11, 3, 9, 3, 32.624198))
sketch3.addConstraint(Sketcher.Constraint("DistanceY", 12, 3, 13, 3, 18.445501))
sketch3.addConstraint(Sketcher.Constraint("DistanceX", 17, 3, 15, 3, 32.624198))
sketch3.addConstraint(Sketcher.Constraint("DistanceY", 30, 3, 29, 3, 13.0508))
sketch3.addConstraint(Sketcher.Constraint("DistanceY", 27, 3, 31, 3, 48.1249))
sketch3.addConstraint(Sketcher.Constraint("DistanceY", 32, 3, 31, 3, 22.689002))
sketch3.addConstraint(Sketcher.Constraint("DistanceX", 33, 3, 30, 3, 60.578702))
sketch3.addConstraint(Sketcher.Constraint("DistanceY", 34, 3, 29, 3, 45.747699))
sketch3.addConstraint(Sketcher.Constraint("DistanceY", 26, 3, 36, 3, 18.445501))
sketch3.addConstraint(Sketcher.Constraint("DistanceY", 29, 3, 47, 3, 11.5032))
sketch3.addConstraint(Sketcher.Constraint("DistanceX", 1, 3, -1, 1, 60.205261))
sketch3.addConstraint(Sketcher.Constraint("DistanceY", 1, 3, -1, 1, 65.293428))
sketch3.addConstraint(Sketcher.Constraint("DistanceX", 3, 3, -1, 1, 104.747839))
sketch3.addConstraint(Sketcher.Constraint("DistanceX", 4, 3, -1, 1, 124.996169))
sketch3.addConstraint(Sketcher.Constraint("DistanceX", 5, 3, -1, 1, 138.681871))
sketch3.addConstraint(Sketcher.Constraint("DistanceX", -1, 1, 8, 3, 27.958559))
sketch3.addConstraint(Sketcher.Constraint("DistanceX", 12, 3, -1, 1, 89.338681))
sketch3.addConstraint(Sketcher.Constraint("DistanceX", -1, 1, 14, 3, 21.521892))
sketch3.addConstraint(Sketcher.Constraint("DistanceX", 17, 3, -1, 1, 23.647652))
sketch3.addConstraint(Sketcher.Constraint("DistanceX", -1, 1, 21, 3, 57.17938))
sketch3.addConstraint(Sketcher.Constraint("DistanceY", -1, 1, 27, 3, 67.61637))
sketch3.addConstraint(Sketcher.Constraint("DistanceX", 3, 3, 0, 3, 73.466542))
sketch3.addConstraint(Sketcher.Constraint("DistanceX", 6, 3, 2, 3, 63.330341))
sketch3.addConstraint(Sketcher.Constraint("DistanceY", 3, 3, 7, 3, 92.210689))
sketch3.addConstraint(Sketcher.Constraint("DistanceY", 0, 3, 8, 3, 101.852918))
sketch3.addConstraint(Sketcher.Constraint("DistanceY", 0, 3, 9, 3, 51.768059))
sketch3.addConstraint(Sketcher.Constraint("DistanceX", 2, 3, 11, 3, 6.61995))
sketch3.addConstraint(Sketcher.Constraint("DistanceX", 6, 3, 13, 3, 50.968278))
sketch3.addConstraint(Sketcher.Constraint("DistanceX", 9, 3, 16, 3, 36.557609))
sketch3.addConstraint(Sketcher.Constraint("DistanceX", 8, 3, 18, 3, 50.968278))
sketch3.addConstraint(Sketcher.Constraint("DistanceY", 8, 3, 18, 3, 12.17862))
sketch3.addConstraint(Sketcher.Constraint("DistanceX", 14, 3, 20, 3, 49.343191))
sketch3.addConstraint(Sketcher.Constraint("DistanceY", 13, 3, 25, 3, 24.357241))
sketch3.addConstraint(Sketcher.Constraint("DistanceX", 29, 3, 27, 3, 63.330341))
sketch3.addConstraint(Sketcher.Constraint("DistanceY", 33, 3, 29, 3, 40.264858))
sketch3.addConstraint(Sketcher.Constraint("DistanceY", -1, 1, 28, 3, 158.345697))
sketch3.setExpression("Constraints[99]", "Params.sketch3_diameter")
pocket2 = body.newObject("PartDesign::Pocket", "Pocket001")
pocket2.Profile = sketch3
pocket2.setExpression("Length", "Params.pocket2_length")
pocket2.Reversed = True

doc.recompute()
